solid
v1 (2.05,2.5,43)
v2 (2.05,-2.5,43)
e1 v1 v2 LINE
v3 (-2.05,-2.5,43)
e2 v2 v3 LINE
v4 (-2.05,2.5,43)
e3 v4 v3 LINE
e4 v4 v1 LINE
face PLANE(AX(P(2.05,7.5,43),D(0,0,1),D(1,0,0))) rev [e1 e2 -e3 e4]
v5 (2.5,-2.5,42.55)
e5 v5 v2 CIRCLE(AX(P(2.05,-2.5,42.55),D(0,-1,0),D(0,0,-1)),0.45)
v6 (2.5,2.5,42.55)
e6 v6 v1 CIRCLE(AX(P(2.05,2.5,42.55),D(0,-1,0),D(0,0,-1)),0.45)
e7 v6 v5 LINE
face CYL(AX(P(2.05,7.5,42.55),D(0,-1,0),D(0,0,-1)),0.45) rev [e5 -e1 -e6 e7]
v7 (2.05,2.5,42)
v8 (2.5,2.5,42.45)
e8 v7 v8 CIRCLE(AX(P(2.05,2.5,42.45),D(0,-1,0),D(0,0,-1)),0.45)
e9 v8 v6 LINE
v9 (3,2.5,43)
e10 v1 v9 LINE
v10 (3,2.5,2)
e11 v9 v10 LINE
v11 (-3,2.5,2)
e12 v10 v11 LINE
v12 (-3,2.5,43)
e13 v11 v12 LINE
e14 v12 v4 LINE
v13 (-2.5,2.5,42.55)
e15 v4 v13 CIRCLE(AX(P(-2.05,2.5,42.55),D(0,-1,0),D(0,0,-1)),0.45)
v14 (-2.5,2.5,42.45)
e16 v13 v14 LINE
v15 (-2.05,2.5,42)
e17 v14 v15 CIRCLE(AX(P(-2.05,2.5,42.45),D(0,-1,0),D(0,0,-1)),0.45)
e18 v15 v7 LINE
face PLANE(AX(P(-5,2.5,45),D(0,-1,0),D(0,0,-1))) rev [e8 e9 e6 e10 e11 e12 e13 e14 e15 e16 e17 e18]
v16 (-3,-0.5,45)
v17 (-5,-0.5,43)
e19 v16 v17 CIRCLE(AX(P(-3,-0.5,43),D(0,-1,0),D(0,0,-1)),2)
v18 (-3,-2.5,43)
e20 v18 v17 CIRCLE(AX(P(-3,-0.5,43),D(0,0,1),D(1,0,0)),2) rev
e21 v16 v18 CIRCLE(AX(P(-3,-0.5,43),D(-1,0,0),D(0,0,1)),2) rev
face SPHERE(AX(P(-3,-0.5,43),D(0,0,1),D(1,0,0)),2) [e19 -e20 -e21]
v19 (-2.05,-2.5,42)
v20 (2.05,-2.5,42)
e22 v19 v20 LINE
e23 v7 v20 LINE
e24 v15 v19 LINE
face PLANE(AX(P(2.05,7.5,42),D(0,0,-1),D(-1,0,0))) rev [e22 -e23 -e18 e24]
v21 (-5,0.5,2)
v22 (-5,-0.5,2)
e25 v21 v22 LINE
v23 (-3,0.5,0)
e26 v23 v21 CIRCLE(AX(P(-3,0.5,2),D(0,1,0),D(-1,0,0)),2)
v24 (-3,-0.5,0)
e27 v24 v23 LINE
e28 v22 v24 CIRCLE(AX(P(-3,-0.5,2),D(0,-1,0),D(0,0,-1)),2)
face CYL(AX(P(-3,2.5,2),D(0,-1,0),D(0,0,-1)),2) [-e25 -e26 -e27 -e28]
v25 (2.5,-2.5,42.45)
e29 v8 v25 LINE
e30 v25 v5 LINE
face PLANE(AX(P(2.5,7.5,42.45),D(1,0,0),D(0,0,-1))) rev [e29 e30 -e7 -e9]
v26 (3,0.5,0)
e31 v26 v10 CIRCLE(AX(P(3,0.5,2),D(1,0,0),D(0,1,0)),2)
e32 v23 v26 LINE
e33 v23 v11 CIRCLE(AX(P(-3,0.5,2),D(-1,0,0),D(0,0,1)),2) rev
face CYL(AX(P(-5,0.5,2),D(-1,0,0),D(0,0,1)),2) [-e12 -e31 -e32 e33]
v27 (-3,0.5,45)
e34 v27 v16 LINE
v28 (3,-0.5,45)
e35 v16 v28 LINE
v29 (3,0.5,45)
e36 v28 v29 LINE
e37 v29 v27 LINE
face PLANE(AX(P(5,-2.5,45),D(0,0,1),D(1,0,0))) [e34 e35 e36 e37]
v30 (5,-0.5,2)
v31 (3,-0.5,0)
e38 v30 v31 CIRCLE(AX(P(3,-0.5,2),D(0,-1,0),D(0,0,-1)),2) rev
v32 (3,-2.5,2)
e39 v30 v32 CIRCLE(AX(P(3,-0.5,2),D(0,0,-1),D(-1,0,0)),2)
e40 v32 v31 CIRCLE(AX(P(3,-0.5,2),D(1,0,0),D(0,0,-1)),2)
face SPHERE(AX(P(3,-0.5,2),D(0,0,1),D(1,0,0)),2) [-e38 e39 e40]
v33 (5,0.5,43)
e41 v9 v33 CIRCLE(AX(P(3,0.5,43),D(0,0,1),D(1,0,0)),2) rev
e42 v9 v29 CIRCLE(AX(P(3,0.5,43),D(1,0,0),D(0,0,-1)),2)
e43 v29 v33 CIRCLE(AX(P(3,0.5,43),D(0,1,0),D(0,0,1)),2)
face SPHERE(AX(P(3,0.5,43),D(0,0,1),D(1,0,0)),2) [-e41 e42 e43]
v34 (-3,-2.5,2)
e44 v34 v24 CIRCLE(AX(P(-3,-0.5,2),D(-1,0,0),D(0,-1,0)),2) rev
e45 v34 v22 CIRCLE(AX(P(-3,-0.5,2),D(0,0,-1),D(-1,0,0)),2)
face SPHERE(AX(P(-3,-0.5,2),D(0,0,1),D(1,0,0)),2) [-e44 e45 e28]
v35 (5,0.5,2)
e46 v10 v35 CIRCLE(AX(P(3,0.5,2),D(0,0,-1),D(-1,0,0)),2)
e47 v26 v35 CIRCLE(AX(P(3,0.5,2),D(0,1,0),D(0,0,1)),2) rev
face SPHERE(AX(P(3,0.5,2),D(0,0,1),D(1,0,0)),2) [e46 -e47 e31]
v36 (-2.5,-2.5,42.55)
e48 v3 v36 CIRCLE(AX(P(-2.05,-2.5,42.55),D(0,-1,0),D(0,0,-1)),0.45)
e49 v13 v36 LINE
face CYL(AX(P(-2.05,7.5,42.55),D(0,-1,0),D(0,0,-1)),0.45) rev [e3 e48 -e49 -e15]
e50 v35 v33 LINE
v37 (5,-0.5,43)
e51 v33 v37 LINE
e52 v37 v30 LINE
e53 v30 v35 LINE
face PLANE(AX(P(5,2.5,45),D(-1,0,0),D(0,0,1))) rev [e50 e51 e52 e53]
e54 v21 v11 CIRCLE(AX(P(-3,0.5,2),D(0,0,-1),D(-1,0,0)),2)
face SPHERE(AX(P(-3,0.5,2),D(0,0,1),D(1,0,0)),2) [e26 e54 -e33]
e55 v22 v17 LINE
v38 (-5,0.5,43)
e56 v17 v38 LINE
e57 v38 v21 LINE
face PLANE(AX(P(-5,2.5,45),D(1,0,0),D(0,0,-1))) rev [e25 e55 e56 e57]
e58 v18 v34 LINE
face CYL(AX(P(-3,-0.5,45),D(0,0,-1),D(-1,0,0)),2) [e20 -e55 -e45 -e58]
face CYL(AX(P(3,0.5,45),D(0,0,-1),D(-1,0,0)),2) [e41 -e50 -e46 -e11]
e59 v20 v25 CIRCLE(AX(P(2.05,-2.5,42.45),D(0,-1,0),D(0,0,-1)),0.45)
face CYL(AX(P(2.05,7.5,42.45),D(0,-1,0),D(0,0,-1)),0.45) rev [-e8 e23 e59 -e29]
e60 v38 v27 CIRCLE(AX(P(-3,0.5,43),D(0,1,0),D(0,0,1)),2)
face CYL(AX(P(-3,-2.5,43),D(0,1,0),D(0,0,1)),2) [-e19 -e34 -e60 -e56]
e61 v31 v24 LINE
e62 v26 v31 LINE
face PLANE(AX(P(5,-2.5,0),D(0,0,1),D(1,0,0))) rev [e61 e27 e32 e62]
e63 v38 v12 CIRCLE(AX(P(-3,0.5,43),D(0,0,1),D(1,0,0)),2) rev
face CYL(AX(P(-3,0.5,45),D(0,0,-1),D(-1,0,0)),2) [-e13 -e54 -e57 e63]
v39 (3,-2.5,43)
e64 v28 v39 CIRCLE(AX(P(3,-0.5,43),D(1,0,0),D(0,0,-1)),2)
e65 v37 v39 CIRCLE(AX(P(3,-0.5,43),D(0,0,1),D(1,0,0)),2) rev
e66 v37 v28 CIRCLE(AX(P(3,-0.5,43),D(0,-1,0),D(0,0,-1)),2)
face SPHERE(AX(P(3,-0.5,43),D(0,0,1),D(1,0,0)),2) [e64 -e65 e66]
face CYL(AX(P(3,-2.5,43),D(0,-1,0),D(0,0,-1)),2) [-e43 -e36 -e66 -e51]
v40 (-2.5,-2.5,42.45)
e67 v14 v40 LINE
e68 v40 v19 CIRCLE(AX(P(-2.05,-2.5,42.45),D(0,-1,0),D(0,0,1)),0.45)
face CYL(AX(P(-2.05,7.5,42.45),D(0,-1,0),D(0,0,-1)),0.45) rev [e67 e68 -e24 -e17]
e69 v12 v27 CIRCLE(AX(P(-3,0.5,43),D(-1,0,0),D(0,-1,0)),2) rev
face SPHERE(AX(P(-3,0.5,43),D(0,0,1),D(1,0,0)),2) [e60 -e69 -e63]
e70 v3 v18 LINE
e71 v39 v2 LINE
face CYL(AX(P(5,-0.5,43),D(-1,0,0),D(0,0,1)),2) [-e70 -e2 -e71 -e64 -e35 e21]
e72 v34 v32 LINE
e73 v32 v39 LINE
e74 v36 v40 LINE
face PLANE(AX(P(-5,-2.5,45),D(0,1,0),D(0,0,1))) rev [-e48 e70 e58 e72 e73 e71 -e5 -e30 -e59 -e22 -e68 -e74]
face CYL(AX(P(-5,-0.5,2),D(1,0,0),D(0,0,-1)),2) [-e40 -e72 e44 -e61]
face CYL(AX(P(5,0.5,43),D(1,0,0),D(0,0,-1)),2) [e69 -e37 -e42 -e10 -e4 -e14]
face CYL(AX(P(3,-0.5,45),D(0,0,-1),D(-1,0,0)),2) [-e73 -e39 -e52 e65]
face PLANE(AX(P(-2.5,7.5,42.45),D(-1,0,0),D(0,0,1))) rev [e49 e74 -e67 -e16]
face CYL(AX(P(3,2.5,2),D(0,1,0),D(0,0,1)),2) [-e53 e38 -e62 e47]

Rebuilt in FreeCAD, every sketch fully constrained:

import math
import FreeCAD as App
import Part
import Sketcher
Q = App.Units.Quantity

doc = App.newDocument("Part")
params = doc.addObject("Spreadsheet::Sheet", "Params")
for row, (alias, value) in enumerate([
    ("sketch1_width", "10 mm"),
    ("sketch1_height", "5 mm"),
    ("pad1_length", "45 mm"),
    ("fillet_radius", "2 mm"),
    ("sketch2_radius", "0.45 mm"),
    ("sketch2_width", "4.1 mm"),
    ("sketch2_height", "0.1 mm"),
    ("pocket1_length", "10 mm"),
], start=1):
    params.set(f"A{row}", alias)
    params.set(f"B{row}", "=" + value)
    params.setAlias(f"B{row}", alias)

body = doc.addObject("PartDesign::Body", "Body")

sketch1 = doc.addObject("Sketcher::SketchObject", "Sketch")
body.addObject(sketch1)
sketch1.AttachmentSupport = (doc.XY_Plane, [""])
sketch1.MapMode = "FlatFace"
sketch1.addGeometry(Part.LineSegment(App.Vector(-5, 2, 0), App.Vector(-5, -2, 0)), False)
sketch1.addGeometry(Part.LineSegment(App.Vector(-5, -2, 0), App.Vector(5, -2, 0)), False)
sketch1.addGeometry(Part.LineSegment(App.Vector(5, -2, 0), App.Vector(5, 2, 0)), False)
sketch1.addGeometry(Part.LineSegment(App.Vector(5, 2, 0), App.Vector(-5, 2, 0)), False)
sketch1.addConstraint(Sketcher.Constraint("Coincident", 0, 2, 1, 1))
sketch1.addConstraint(Sketcher.Constraint("Coincident", 1, 2, 2, 1))
sketch1.addConstraint(Sketcher.Constraint("Coincident", 2, 2, 3, 1))
sketch1.addConstraint(Sketcher.Constraint("Coincident", 3, 2, 0, 1))
sketch1.addConstraint(Sketcher.Constraint("Vertical", 0))
sketch1.addConstraint(Sketcher.Constraint("Horizontal", 1))
sketch1.addConstraint(Sketcher.Constraint("Vertical", 2))
sketch1.addConstraint(Sketcher.Constraint("Horizontal", 3))
sketch1.addConstraint(Sketcher.Constraint("Symmetric", 0, 2, 2, 2, -1, 1))
sketch1.addConstraint(Sketcher.Constraint("DistanceX", 1, 1, 1, 2, Q("10 mm")))
sketch1.addConstraint(Sketcher.Constraint("DistanceY", 0, 2, 0, 1, Q("5 mm")))
sketch1.setExpression("Constraints[9]", "Params.sketch1_width")
sketch1.setExpression("Constraints[10]", "Params.sketch1_height")
pad1 = doc.addObject("PartDesign::Pad", "Pad")
body.addObject(pad1)
pad1.Profile = sketch1
pad1.setExpression("Length", "Params.pad1_length")
doc.recompute()

fillet = doc.addObject("PartDesign::Fillet", "Fillet")
body.addObject(fillet)
fillet.Base = (pad1, ["Edge1"])
fillet.UseAllEdges = True
fillet.setExpression("Radius", "Params.fillet_radius")

sketch2 = doc.addObject("Sketcher::SketchObject", "Sketch001")
body.addObject(sketch2)
sketch2.AttachmentSupport = (doc.XZ_Plane, [""])
sketch2.MapMode = "FlatFace"
sketch2.AttachmentOffset = App.Placement(App.Vector(0, 0, 2.5), App.Rotation())
sketch2.addGeometry(Part.LineSegment(App.Vector(-2.05, 42, 0), App.Vector(2.05, 42, 0)), False)
sketch2.addGeometry(Part.ArcOfCircle(Part.Circle(App.Vector(2.05, 42.45, 0), App.Vector(0, 0, 1), 0.45), math.radians(-90), math.radians(0)), False)
sketch2.addGeometry(Part.LineSegment(App.Vector(2.5, 42.45, 0), App.Vector(2.5, 42.55, 0)), False)
sketch2.addGeometry(Part.ArcOfCircle(Part.Circle(App.Vector(2.05, 42.55, 0), App.Vector(0, 0, 1), 0.45), math.radians(0), math.radians(90)), False)
sketch2.addGeometry(Part.LineSegment(App.Vector(2.05, 43, 0), App.Vector(-2.05, 43, 0)), False)
sketch2.addGeometry(Part.ArcOfCircle(Part.Circle(App.Vector(-2.05, 42.55, 0), App.Vector(0, 0, 1), 0.45), math.radians(90), math.radians(180)), False)
sketch2.addGeometry(Part.LineSegment(App.Vector(-2.5, 42.55, 0), App.Vector(-2.5, 42.45, 0)), False)
sketch2.addGeometry(Part.ArcOfCircle(Part.Circle(App.Vector(-2.05, 42.45, 0), App.Vector(0, 0, 1), 0.45), math.radians(180), math.radians(270)), False)
sketch2.addConstraint(Sketcher.Constraint("Tangent", 0, 2, 1, 1))
sketch2.addConstraint(Sketcher.Constraint("Tangent", 1, 2, 2, 1))
sketch2.addConstraint(Sketcher.Constraint("Tangent", 2, 2, 3, 1))
sketch2.addConstraint(Sketcher.Constraint("Tangent", 3, 2, 4, 1))
sketch2.addConstraint(Sketcher.Constraint("Tangent", 4, 2, 5, 1))
sketch2.addConstraint(Sketcher.Constraint("Tangent", 5, 2, 6, 1))
sketch2.addConstraint(Sketcher.Constraint("Tangent", 6, 2, 7, 1))
sketch2.addConstraint(Sketcher.Constraint("Tangent", 7, 2, 0, 1))
sketch2.addConstraint(Sketcher.Constraint("Horizontal", 0))
sketch2.addConstraint(Sketcher.Constraint("Vertical", 2))
sketch2.addConstraint(Sketcher.Constraint("Horizontal", 4))
sketch2.addConstraint(Sketcher.Constraint("Vertical", 6))
sketch2.addConstraint(Sketcher.Constraint("Equal", 1, 3))
sketch2.addConstraint(Sketcher.Constraint("Equal", 3, 5))
sketch2.addConstraint(Sketcher.Constraint("Equal", 5, 7))
sketch2.addConstraint(Sketcher.Constraint("Radius", 1, Q("0.45 mm")))
sketch2.addConstraint(Sketcher.Constraint("DistanceX", 0, 1, 0, 2, Q("4.1 mm")))
sketch2.addConstraint(Sketcher.Constraint("DistanceY", 2, 1, 2, 2, Q("0.1 mm")))
sketch2.addConstraint(Sketcher.Constraint("DistanceY", -1, 1, 0, 2, Q("42 mm")))
sketch2.addConstraint(Sketcher.Constraint("DistanceX", -1, 1, 1, 2, Q("2.5 mm")))
sketch2.setExpression("Constraints[15]", "Params.sketch2_radius")
sketch2.setExpression("Constraints[16]", "Params.sketch2_width")
sketch2.setExpression("Constraints[17]", "Params.sketch2_height")
pocket1 = doc.addObject("PartDesign::Pocket", "Pocket")
body.addObject(pocket1)
pocket1.Profile = sketch2
pocket1.setExpression("Length", "Params.pocket1_length")

doc.recompute()
